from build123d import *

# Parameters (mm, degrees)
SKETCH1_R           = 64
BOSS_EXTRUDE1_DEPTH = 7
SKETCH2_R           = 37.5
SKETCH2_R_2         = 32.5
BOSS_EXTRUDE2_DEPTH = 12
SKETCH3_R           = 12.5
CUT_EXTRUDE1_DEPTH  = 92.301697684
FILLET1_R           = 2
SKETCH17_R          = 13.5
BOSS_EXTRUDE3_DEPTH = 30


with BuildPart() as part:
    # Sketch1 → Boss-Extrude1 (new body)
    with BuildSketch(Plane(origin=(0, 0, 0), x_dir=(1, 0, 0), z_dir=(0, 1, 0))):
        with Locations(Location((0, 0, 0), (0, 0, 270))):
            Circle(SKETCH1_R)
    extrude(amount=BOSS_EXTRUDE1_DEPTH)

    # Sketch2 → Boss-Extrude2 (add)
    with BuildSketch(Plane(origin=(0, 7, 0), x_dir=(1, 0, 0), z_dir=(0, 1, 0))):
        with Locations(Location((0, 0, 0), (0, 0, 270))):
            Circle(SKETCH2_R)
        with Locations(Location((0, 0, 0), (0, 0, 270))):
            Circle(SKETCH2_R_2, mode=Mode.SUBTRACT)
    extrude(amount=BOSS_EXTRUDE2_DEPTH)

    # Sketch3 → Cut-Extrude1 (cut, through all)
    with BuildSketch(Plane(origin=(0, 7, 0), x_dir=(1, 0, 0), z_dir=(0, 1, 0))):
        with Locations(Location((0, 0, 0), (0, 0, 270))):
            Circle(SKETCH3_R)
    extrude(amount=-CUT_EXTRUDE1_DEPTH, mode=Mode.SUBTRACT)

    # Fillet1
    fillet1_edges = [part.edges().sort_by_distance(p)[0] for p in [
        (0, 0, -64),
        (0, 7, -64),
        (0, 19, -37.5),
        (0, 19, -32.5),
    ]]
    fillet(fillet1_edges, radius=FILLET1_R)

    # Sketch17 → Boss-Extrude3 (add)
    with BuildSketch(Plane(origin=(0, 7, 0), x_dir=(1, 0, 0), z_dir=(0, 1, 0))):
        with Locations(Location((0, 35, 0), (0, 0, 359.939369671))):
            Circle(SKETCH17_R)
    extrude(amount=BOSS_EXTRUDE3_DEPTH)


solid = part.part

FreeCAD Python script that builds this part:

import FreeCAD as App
import Part
import Sketcher

V = App.Vector


def edges_at(feature, points):
    """Names of the edges that pass closest to the given points."""
    edges = feature.Shape.Edges
    near = lambda p: min(range(len(edges)), key=lambda i: edges[i].distToShape(Part.Vertex(*p))[0])
    return sorted({f"Edge{near(p) + 1}" for p in points})

doc = App.newDocument("Part")
params = doc.addObject("Spreadsheet::Sheet", "Params")
for row, (alias, value) in enumerate([
    ("sketch1_diameter", "128 mm"),
    ("pad1_length", "7 mm"),
    ("sketch2_diameter", "75 mm"),
    ("sketch2_diameter2", "65 mm"),
    ("pad2_length", "12 mm"),
    ("sketch3_diameter", "25 mm"),
    ("fillet_radius", "2 mm"),
    ("sketch4_diameter", "27 mm"),
    ("pad3_length", "30 mm"),
], start=1):
    params.set(f"A{row}", alias)
    params.set(f"B{row}", "=" + value)
    params.setAlias(f"B{row}", alias)

body = doc.addObject("PartDesign::Body", "Body")

sketch1 = body.newObject("Sketcher::SketchObject", "Sketch")
sketch1.AttachmentSupport = (doc.getObject("XZ_Plane"), [""])
sketch1.MapMode = "FlatFace"
sketch1.addGeometry(Part.Circle(V(0, 0, 0), V(0, 0, 1), 64), False)
sketch1.addConstraint(Sketcher.Constraint("Coincident", 0, 3, -1, 1))
sketch1.addConstraint(Sketcher.Constraint("Diameter", 0, 128.0))
sketch1.setExpression("Constraints[1]", "Params.sketch1_diameter")
pad1 = body.newObject("PartDesign::Pad", "Pad")
pad1.Profile = sketch1
pad1.setExpression("Length", "Params.pad1_length")
pad1.Reversed = True

sketch2 = body.newObject("Sketcher::SketchObject", "Sketch001")
sketch2.AttachmentSupport = (doc.getObject("XZ_Plane"), [""])
sketch2.MapMode = "FlatFace"
sketch2.AttachmentOffset = App.Placement(V(0, 0, -7), App.Rotation())
sketch2.addGeometry(Part.Circle(V(0, 0, 0), V(0, 0, 1), 38), False)
sketch2.addGeometry(Part.Circle(V(0, 0, 0), V(0, 0, 1), 32), False)
sketch2.addConstraint(Sketcher.Constraint("Coincident", 0, 3, -1, 1))
sketch2.addConstraint(Sketcher.Constraint("Coincident", 1, 3, -1, 1))
sketch2.addConstraint(Sketcher.Constraint("Diameter", 0, 75.0))
sketch2.addConstraint(Sketcher.Constraint("Diameter", 1, 65.0))
sketch2.setExpression("Constraints[2]", "Params.sketch2_diameter")
sketch2.setExpression("Constraints[3]", "Params.sketch2_diameter2")
pad2 = body.newObject("PartDesign::Pad", "Pad001")
pad2.Profile = sketch2
pad2.setExpression("Length", "Params.pad2_length")
pad2.Reversed = True

sketch3 = body.newObject("Sketcher::SketchObject", "Sketch002")
sketch3.AttachmentSupport = (doc.getObject("XZ_Plane"), [""])
sketch3.MapMode = "FlatFace"
sketch3.AttachmentOffset = App.Placement(V(0, 0, -7), App.Rotation())
sketch3.addGeometry(Part.Circle(V(0, 0, 0), V(0, 0, 1), 12), False)
sketch3.addConstraint(Sketcher.Constraint("Coincident", 0, 3, -1, 1))
sketch3.addConstraint(Sketcher.Constraint("Diameter", 0, 25.0))
sketch3.setExpression("Constraints[1]", "Params.sketch3_diameter")
pocket1 = body.newObject("PartDesign::Pocket", "Pocket")
pocket1.Profile = sketch3
pocket1.Type = "ThroughAll"
pocket1.Reversed = True
doc.recompute()

fillet = body.newObject("PartDesign::Fillet", "Fillet")
fillet.Base = (pocket1, edges_at(pocket1, [
    (0, 0, -64),
    (0, 7, -64),
    (0, 19, -37.5),
    (0, 19, -32.5),
]))
fillet.setExpression("Radius", "Params.fillet_radius")

sketch4 = body.newObject("Sketcher::SketchObject", "Sketch003")
sketch4.AttachmentSupport = (doc.getObject("XZ_Plane"), [""])
sketch4.MapMode = "FlatFace"
sketch4.AttachmentOffset = App.Placement(V(0, 0, -7), App.Rotation())
sketch4.addGeometry(Part.Circle(V(0, -35, 0), V(0, 0, 1), 14), False)
sketch4.addConstraint(Sketcher.Constraint("PointOnObject", 0, 3, -2))
sketch4.addConstraint(Sketcher.Constraint("Diameter", 0, 27.0))
sketch4.addConstraint(Sketcher.Constraint("DistanceY", 0, 3, -1, 1, 35.0))
sketch4.setExpression("Constraints[1]", "Params.sketch4_diameter")
pad3 = body.newObject("PartDesign::Pad", "Pad002")
pad3.Profile = sketch4
pad3.setExpression("Length", "Params.pad3_length")
pad3.Reversed = True

doc.recompute()
